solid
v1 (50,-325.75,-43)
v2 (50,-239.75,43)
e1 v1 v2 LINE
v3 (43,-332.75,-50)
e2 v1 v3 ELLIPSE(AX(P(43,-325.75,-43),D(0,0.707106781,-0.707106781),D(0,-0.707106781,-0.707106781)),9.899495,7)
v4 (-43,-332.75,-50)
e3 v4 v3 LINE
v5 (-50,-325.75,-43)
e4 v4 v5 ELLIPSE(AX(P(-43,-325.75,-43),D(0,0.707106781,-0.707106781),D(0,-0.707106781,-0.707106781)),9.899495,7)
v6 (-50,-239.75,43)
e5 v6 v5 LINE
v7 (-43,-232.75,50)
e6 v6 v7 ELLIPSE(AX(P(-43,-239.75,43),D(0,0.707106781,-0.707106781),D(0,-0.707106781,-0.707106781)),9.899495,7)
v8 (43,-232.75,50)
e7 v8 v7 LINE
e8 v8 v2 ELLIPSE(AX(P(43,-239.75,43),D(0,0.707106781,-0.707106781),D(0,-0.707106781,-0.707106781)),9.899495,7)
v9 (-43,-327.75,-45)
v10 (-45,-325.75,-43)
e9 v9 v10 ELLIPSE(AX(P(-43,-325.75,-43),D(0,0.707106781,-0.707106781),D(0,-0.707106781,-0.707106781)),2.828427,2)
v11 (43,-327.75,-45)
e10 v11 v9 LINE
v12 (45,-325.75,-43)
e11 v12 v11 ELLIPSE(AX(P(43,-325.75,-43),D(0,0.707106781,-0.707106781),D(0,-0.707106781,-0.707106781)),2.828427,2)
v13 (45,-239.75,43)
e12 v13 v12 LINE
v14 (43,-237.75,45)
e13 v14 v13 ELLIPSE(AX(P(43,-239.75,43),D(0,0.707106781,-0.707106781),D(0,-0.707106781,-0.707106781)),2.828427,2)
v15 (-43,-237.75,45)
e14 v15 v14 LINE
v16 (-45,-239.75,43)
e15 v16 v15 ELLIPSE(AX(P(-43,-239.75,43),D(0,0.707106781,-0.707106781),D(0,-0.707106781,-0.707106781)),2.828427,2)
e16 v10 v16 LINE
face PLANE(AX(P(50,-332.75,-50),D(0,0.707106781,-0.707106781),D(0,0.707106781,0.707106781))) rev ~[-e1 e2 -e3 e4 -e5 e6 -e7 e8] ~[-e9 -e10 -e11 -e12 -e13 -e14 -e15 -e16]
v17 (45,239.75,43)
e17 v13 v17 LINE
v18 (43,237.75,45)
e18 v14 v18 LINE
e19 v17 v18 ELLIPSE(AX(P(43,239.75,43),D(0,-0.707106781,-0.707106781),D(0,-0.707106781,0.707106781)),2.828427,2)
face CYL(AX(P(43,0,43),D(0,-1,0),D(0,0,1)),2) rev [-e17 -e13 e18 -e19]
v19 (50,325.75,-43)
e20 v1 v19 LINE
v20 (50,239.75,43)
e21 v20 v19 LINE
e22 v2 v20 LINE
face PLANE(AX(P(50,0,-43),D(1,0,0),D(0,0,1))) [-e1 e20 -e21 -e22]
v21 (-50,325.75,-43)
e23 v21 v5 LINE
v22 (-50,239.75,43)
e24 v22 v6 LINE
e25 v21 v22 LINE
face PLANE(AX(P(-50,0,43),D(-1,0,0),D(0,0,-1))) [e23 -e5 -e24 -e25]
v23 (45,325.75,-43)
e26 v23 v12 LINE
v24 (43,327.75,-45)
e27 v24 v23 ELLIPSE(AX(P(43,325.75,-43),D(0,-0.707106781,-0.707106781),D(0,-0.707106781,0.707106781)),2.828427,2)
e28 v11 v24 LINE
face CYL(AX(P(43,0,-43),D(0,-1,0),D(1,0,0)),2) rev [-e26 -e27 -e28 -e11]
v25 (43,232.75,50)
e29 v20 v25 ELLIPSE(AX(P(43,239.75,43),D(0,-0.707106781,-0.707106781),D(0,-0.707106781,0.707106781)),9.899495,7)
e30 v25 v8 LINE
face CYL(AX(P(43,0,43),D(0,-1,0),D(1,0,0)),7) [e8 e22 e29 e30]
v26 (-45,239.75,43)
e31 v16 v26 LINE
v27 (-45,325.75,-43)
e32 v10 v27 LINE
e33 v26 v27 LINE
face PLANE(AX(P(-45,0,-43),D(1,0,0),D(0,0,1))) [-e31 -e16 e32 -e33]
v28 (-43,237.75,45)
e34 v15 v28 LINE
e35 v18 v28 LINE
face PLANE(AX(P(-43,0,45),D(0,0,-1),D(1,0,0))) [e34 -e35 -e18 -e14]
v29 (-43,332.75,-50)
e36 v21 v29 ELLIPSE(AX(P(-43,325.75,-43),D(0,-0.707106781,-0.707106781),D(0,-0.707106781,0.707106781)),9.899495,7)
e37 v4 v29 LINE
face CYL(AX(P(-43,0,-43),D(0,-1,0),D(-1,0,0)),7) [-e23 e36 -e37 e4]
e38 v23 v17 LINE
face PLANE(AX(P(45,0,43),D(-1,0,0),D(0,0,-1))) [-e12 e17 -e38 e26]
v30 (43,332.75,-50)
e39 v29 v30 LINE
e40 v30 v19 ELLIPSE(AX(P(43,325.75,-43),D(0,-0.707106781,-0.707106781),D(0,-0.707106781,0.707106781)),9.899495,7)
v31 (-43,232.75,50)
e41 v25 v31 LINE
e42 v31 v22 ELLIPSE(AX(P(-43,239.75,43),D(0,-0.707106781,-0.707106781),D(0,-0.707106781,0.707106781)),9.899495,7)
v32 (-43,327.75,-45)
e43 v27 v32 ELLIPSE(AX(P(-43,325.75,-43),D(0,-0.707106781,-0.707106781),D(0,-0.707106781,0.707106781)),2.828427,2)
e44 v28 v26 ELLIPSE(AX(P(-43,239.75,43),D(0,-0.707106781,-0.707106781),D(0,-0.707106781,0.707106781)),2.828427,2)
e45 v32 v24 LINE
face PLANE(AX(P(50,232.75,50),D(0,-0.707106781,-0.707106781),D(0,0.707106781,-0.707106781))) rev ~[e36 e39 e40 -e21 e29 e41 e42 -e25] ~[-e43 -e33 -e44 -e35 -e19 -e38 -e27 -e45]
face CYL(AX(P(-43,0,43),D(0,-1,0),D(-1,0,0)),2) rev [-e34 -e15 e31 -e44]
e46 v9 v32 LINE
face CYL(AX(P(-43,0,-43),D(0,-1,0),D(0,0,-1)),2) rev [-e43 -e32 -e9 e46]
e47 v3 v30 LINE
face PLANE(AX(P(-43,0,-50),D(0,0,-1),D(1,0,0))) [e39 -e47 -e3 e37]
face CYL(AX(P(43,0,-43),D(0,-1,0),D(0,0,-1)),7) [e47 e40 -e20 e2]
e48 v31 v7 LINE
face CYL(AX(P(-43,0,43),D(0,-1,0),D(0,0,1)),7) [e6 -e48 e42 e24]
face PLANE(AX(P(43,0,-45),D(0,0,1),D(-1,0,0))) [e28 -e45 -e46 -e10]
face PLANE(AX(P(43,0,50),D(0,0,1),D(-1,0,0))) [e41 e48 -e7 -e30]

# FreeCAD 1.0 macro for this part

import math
import FreeCAD as App
import Part
import Sketcher
from FreeCAD import Vector

doc = App.newDocument("Part")
body = doc.addObject("PartDesign::Body", "Body")

sketch1 = body.newObject("Sketcher::SketchObject", "Sketch")
sketch1.AttachmentSupport = (doc.getObject("XZ_Plane"), [""])
sketch1.MapMode = "FlatFace"
sketch1.addGeometry(Part.ArcOfCircle(Part.Circle(Vector(43, 43, 0), Vector(0, 0, 1), 7), math.radians(0), math.radians(90)), False)
sketch1.addGeometry(Part.LineSegment(Vector(43, 50, 0), Vector(-43, 50, 0)), False)
sketch1.addGeometry(Part.ArcOfCircle(Part.Circle(Vector(-43, 43, 0), Vector(0, 0, 1), 7), math.radians(90), math.radians(180)), False)
sketch1.addGeometry(Part.LineSegment(Vector(-50, 43, 0), Vector(-50, -43, 0)), False)
sketch1.addGeometry(Part.ArcOfCircle(Part.Circle(Vector(-43, -43, 0), Vector(0, 0, 1), 7), math.radians(180), math.radians(270)), False)
sketch1.addGeometry(Part.LineSegment(Vector(-43, -50, 0), Vector(43, -50, 0)), False)
sketch1.addGeometry(Part.ArcOfCircle(Part.Circle(Vector(43, -43, 0), Vector(0, 0, 1), 7), math.radians(-90), math.radians(0)), False)
sketch1.addGeometry(Part.LineSegment(Vector(50, -43, 0), Vector(50, 43, 0)), False)
sketch1.addGeometry(Part.LineSegment(Vector(45, 43, 0), Vector(45, -43, 0)), False)
sketch1.addGeometry(Part.ArcOfCircle(Part.Circle(Vector(43, -43, 0), Vector(0, 0, 1), 2), math.radians(-90), math.radians(0)), False)
sketch1.addGeometry(Part.LineSegment(Vector(43, -45, 0), Vector(-43, -45, 0)), False)
sketch1.addGeometry(Part.ArcOfCircle(Part.Circle(Vector(-43, -43, 0), Vector(0, 0, 1), 2), math.radians(180), math.radians(270)), False)
sketch1.addGeometry(Part.LineSegment(Vector(-45, -43, 0), Vector(-45, 43, 0)), False)
sketch1.addGeometry(Part.ArcOfCircle(Part.Circle(Vector(-43, 43, 0), Vector(0, 0, 1), 2), math.radians(90), math.radians(180)), False)
sketch1.addGeometry(Part.LineSegment(Vector(-43, 45, 0), Vector(43, 45, 0)), False)
sketch1.addGeometry(Part.ArcOfCircle(Part.Circle(Vector(43, 43, 0), Vector(0, 0, 1), 2), math.radians(0), math.radians(90)), False)
sketch1.addConstraint(Sketcher.Constraint("Tangent", 0, 2, 1, 1))
sketch1.addConstraint(Sketcher.Constraint("Tangent", 1, 2, 2, 1))
sketch1.addConstraint(Sketcher.Constraint("Tangent", 2, 2, 3, 1))
sketch1.addConstraint(Sketcher.Constraint("Tangent", 3, 2, 4, 1))
sketch1.addConstraint(Sketcher.Constraint("Tangent", 4, 2, 5, 1))
sketch1.addConstraint(Sketcher.Constraint("Tangent", 5, 2, 6, 1))
sketch1.addConstraint(Sketcher.Constraint("Tangent", 6, 2, 7, 1))
sketch1.addConstraint(Sketcher.Constraint("Tangent", 7, 2, 0, 1))
sketch1.addConstraint(Sketcher.Constraint("Tangent", 8, 2, 9, 2))
sketch1.addConstraint(Sketcher.Constraint("Tangent", 9, 1, 10, 1))
sketch1.addConstraint(Sketcher.Constraint("Tangent", 10, 2, 11, 2))
sketch1.addConstraint(Sketcher.Constraint("Tangent", 11, 1, 12, 1))
sketch1.addConstraint(Sketcher.Constraint("Tangent", 12, 2, 13, 2))
sketch1.addConstraint(Sketcher.Constraint("Tangent", 13, 1, 14, 1))
sketch1.addConstraint(Sketcher.Constraint("Tangent", 14, 2, 15, 2))
sketch1.addConstraint(Sketcher.Constraint("Tangent", 15, 1, 8, 1))
sketch1.addConstraint(Sketcher.Constraint("Horizontal", 1))
sketch1.addConstraint(Sketcher.Constraint("Vertical", 3))
sketch1.addConstraint(Sketcher.Constraint("Horizontal", 5))
sketch1.addConstraint(Sketcher.Constraint("Vertical", 7))
sketch1.addConstraint(Sketcher.Constraint("Vertical", 8))
sketch1.addConstraint(Sketcher.Constraint("Horizontal", 10))
sketch1.addConstraint(Sketcher.Constraint("Vertical", 12))
sketch1.addConstraint(Sketcher.Constraint("Horizontal", 14))
sketch1.addConstraint(Sketcher.Constraint("Coincident", 9, 3, 6, 3))
sketch1.addConstraint(Sketcher.Constraint("Coincident", 11, 3, 4, 3))
sketch1.addConstraint(Sketcher.Constraint("Coincident", 13, 3, 2, 3))
sketch1.addConstraint(Sketcher.Constraint("Equal", 0, 2))
sketch1.addConstraint(Sketcher.Constraint("Equal", 2, 4))
sketch1.addConstraint(Sketcher.Constraint("Equal", 4, 6))
sketch1.addConstraint(Sketcher.Constraint("Equal", 13, 15))
sketch1.addConstraint(Sketcher.Constraint("Symmetric", 0, 3, 4, 3, -1, 1))
sketch1.addConstraint(Sketcher.Constraint("Equal", 14, 3))
sketch1.addConstraint(Sketcher.Constraint("Radius", 0, 7.0))
sketch1.addConstraint(Sketcher.Constraint("Radius", 9, 2.0))
sketch1.addConstraint(Sketcher.Constraint("DistanceX", 1, 2, 1, 1, 86.0))
pad1 = body.newObject("PartDesign::Pad", "Pad")
pad1.Profile = sketch1
pad1.Length = 665.5
pad1.Midplane = True

sketch2 = body.newObject("Sketcher::SketchObject", "Sketch001")
sketch2.AttachmentSupport = (doc.getObject("YZ_Plane"), [""])
sketch2.MapMode = "FlatFace"
sketch2.AttachmentOffset = App.Placement(Vector(0, 0, 50), App.Rotation())
sketch2.addGeometry(Part.LineSegment(Vector(333, 50, 0), Vector(233, 50, 0)), False)
sketch2.addGeometry(Part.LineSegment(Vector(233, 50, 0), Vector(333, -50, 0)), False)
sketch2.addGeometry(Part.LineSegment(Vector(333, -50, 0), Vector(333, 50, 0)), False)
sketch2.addGeometry(Part.LineSegment(Vector(-333, -50, 0), Vector(-233, 50, 0)), False)
sketch2.addGeometry(Part.LineSegment(Vector(-233, 50, 0), Vector(-333, 50, 0)), False)
sketch2.addGeometry(Part.LineSegment(Vector(-333, 50, 0), Vector(-333, -50, 0)), False)
sketch2.addConstraint(Sketcher.Constraint("Coincident", 0, 2, 1, 1))
sketch2.addConstraint(Sketcher.Constraint("Coincident", 1, 2, 2, 1))
sketch2.addConstraint(Sketcher.Constraint("Coincident", 2, 2, 0, 1))
sketch2.addConstraint(Sketcher.Constraint("Coincident", 3, 2, 4, 1))
sketch2.addConstraint(Sketcher.Constraint("Coincident", 4, 2, 5, 1))
sketch2.addConstraint(Sketcher.Constraint("Coincident", 5, 2, 3, 1))
sketch2.addConstraint(Sketcher.Constraint("Horizontal", 0))
sketch2.addConstraint(Sketcher.Constraint("Vertical", 2))
sketch2.addConstraint(Sketcher.Constraint("Horizontal", 4))
sketch2.addConstraint(Sketcher.Constraint("Vertical", 5))
sketch2.addConstraint(Sketcher.Constraint("Symmetric", 1, 2, 4, 2, -1, 1))
sketch2.addConstraint(Sketcher.Constraint("Symmetric", 0, 2, 3, 2, -2))
sketch2.addConstraint(Sketcher.Constraint("Perpendicular", 1, 3))
sketch2.addConstraint(Sketcher.Constraint("Horizontal", 1, 2, 5, 2))
sketch2.addConstraint(Sketcher.Constraint("DistanceX", 0, 2, 0, 1, 100.0))
sketch2.addConstraint(Sketcher.Constraint("DistanceX", 3, 2, 0, 2, 465.5))
pocket1 = body.newObject("PartDesign::Pocket", "Pocket")
pocket1.Profile = sketch2
pocket1.Type = "ThroughAll"

doc.recompute()
